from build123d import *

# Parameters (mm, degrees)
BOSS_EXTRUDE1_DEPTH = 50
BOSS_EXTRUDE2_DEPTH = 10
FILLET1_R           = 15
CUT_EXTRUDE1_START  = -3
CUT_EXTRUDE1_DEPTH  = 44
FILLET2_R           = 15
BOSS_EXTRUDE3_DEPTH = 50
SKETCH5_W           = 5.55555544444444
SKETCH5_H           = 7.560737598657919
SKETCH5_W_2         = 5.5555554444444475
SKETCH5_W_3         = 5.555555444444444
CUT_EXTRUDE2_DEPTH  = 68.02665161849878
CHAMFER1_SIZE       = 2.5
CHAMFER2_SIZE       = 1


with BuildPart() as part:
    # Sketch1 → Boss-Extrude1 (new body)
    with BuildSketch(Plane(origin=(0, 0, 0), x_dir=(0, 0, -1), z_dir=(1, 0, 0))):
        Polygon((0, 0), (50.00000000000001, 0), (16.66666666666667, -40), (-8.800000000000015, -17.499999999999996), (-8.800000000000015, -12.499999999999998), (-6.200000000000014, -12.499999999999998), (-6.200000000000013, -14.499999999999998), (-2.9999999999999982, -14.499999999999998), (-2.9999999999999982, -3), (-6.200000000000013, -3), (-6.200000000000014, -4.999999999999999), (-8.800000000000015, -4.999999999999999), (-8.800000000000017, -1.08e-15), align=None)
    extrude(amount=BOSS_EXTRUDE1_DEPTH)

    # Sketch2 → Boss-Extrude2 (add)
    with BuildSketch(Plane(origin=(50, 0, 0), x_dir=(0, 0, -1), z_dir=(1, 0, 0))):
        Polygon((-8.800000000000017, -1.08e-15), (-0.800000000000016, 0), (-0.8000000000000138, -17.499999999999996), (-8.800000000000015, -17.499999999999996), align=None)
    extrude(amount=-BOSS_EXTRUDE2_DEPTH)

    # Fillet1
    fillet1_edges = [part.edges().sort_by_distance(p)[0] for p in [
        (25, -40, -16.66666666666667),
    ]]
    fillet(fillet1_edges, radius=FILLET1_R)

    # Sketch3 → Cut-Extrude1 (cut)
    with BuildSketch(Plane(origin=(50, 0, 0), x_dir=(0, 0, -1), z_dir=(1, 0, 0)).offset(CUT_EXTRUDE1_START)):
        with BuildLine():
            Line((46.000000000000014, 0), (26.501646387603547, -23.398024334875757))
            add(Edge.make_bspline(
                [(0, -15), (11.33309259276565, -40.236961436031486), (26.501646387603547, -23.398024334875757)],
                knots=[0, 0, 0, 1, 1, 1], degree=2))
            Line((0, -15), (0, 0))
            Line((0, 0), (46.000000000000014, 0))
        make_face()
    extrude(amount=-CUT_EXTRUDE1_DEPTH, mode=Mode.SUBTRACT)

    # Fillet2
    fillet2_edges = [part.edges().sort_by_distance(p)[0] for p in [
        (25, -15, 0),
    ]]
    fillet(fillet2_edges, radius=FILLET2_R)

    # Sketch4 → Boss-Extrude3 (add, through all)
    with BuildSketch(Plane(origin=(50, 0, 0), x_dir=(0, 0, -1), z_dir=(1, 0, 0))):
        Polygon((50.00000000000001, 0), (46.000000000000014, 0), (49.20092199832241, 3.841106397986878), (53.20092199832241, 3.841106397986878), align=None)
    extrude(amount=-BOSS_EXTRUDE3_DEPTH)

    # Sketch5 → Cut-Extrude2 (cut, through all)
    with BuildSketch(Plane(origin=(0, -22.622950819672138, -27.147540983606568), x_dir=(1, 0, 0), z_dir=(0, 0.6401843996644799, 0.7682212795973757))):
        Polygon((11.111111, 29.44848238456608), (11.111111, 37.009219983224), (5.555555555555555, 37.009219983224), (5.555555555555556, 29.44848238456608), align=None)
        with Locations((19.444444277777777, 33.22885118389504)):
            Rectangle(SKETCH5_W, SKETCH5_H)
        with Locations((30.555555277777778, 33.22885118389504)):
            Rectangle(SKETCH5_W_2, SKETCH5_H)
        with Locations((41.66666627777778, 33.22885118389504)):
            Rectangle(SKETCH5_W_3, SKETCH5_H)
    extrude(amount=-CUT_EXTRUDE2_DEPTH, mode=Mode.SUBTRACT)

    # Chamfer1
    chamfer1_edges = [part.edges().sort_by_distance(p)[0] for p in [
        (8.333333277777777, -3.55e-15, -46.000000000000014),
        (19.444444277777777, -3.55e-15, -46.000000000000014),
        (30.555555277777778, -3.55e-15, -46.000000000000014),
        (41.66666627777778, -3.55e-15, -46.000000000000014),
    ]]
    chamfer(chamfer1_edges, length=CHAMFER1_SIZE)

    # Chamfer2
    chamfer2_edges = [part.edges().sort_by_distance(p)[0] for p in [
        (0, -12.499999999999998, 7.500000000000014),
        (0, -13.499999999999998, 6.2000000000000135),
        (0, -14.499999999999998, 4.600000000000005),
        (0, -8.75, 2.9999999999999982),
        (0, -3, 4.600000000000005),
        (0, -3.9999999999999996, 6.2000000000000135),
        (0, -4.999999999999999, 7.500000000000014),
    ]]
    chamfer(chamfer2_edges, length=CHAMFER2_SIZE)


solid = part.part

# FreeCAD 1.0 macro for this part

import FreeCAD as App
import Part
import Sketcher

V = App.Vector


def edges_at(feature, points):
    """Names of the edges that pass closest to the given points."""
    edges = feature.Shape.Edges
    near = lambda p: min(range(len(edges)), key=lambda i: edges[i].distToShape(Part.Vertex(*p))[0])
    return sorted({f"Edge{near(p) + 1}" for p in points})

doc = App.newDocument("Part")
body = doc.addObject("PartDesign::Body", "Body")

# Sketch on YZ plane
sketch1 = doc.addObject("Sketcher::SketchObject", "Sketch")
body.addObject(sketch1)
sketch1.AttachmentSupport = (doc.YZ_Plane, [""])
sketch1.MapMode = "FlatFace"
sketch1.addGeometry([
    Part.LineSegment(V(0, -50, 0), V(0, 8.8, 0)),  # 0
    Part.LineSegment(V(0, 8.8, 0), V(-5, 8.8, 0)),  # 1
    Part.LineSegment(V(-5, 8.8, 0), V(-5, 6.2, 0)),  # 2
    Part.LineSegment(V(-5, 6.2, 0), V(-3, 6.2, 0)),  # 3
    Part.LineSegment(V(-3, 6.2, 0), V(-3, 3, 0)),  # 4
    Part.LineSegment(V(-3, 3, 0), V(-14.5, 3, 0)),  # 5
    Part.LineSegment(V(-14.5, 3, 0), V(-14.5, 6.2, 0)),  # 6
    Part.LineSegment(V(-14.5, 6.2, 0), V(-12.5, 6.2, 0)),  # 7
    Part.LineSegment(V(-12.5, 6.2, 0), V(-12.5, 8.8, 0)),  # 8
    Part.LineSegment(V(-12.5, 8.8, 0), V(-17.5, 8.8, 0)),  # 9
    Part.LineSegment(V(-17.5, 8.8, 0), V(-40, -16.7, 0)),  # 10
    Part.LineSegment(V(-40, -16.7, 0), V(0, -50, 0)),  # 11
], False)
sketch1.addConstraint([
    Sketcher.Constraint("Coincident", 0, 2, 1, 1),
    Sketcher.Constraint("Coincident", 1, 2, 2, 1),
    Sketcher.Constraint("Coincident", 2, 2, 3, 1),
    Sketcher.Constraint("Coincident", 3, 2, 4, 1),
    Sketcher.Constraint("Coincident", 4, 2, 5, 1),
    Sketcher.Constraint("Coincident", 5, 2, 6, 1),
    Sketcher.Constraint("Coincident", 6, 2, 7, 1),
    Sketcher.Constraint("Coincident", 7, 2, 8, 1),
    Sketcher.Constraint("Coincident", 8, 2, 9, 1),
    Sketcher.Constraint("Coincident", 9, 2, 10, 1),
    Sketcher.Constraint("Coincident", 10, 2, 11, 1),
    Sketcher.Constraint("Coincident", 11, 2, 0, 1),
    Sketcher.Constraint("Vertical", 0),
    Sketcher.Constraint("Horizontal", 1),
    Sketcher.Constraint("Vertical", 2),
    Sketcher.Constraint("Horizontal", 3),
    Sketcher.Constraint("Vertical", 4),
    Sketcher.Constraint("Horizontal", 5),
    Sketcher.Constraint("Vertical", 6),
    Sketcher.Constraint("Horizontal", 7),
    Sketcher.Constraint("Vertical", 8),
    Sketcher.Constraint("Horizontal", 9),
    Sketcher.Constraint("PointOnObject", 0, 2, -2),
    Sketcher.Constraint("Horizontal", 3, 2, 6, 2),
    Sketcher.Constraint("Horizontal", 1, 2, 8, 2),
    Sketcher.Constraint("Equal", 3, 7),
    Sketcher.Constraint("Equal", 1, 9),
    Sketcher.Constraint("DistanceX", 1, 2, 1, 1, 5.0),
    Sketcher.Constraint("DistanceX", 3, 1, 3, 2, 2.0),
    Sketcher.Constraint("DistanceX", 5, 2, 5, 1, 11.5),
    Sketcher.Constraint("DistanceY", 0, 1, 0, 2, 58.8),
    Sketcher.Constraint("DistanceY", 2, 2, 2, 1, 2.6),
    Sketcher.Constraint("DistanceY", 4, 2, 4, 1, 3.2),
    Sketcher.Constraint("DistanceY", -1, 1, 4, 2, 3.0),
    Sketcher.Constraint("DistanceX", 10, 2, -1, 1, 40.0),
    Sketcher.Constraint("Distance", 11, 52.068331),
])
pad1 = doc.addObject("PartDesign::Pad", "Pad")
body.addObject(pad1)
pad1.Profile = sketch1
pad1.Length = 50

# Sketch on YZ plane
sketch2 = doc.addObject("Sketcher::SketchObject", "Sketch001")
body.addObject(sketch2)
sketch2.AttachmentSupport = (doc.YZ_Plane, [""])
sketch2.MapMode = "FlatFace"
sketch2.AttachmentOffset = App.Placement(V(0, 0, 50), App.Rotation())
sketch2.addGeometry([
    Part.LineSegment(V(0, 1, 0), V(0, 9, 0)),
    Part.LineSegment(V(0, 9, 0), V(-18, 9, 0)),
    Part.LineSegment(V(-18, 9, 0), V(-18, 1, 0)),
    Part.LineSegment(V(-18, 1, 0), V(0, 1, 0)),
], False)
sketch2.addConstraint([
    Sketcher.Constraint("Coincident", 0, 2, 1, 1),
    Sketcher.Constraint("Coincident", 1, 2, 2, 1),
    Sketcher.Constraint("Coincident", 2, 2, 3, 1),
    Sketcher.Constraint("Coincident", 3, 2, 0, 1),
    Sketcher.Constraint("Vertical", 0),
    Sketcher.Constraint("Horizontal", 1),
    Sketcher.Constraint("Vertical", 2),
    Sketcher.Constraint("Horizontal", 3),
    Sketcher.Constraint("PointOnObject", 0, 2, -2),
    Sketcher.Constraint("DistanceY", 0, 1, 0, 2, 8.0),
    Sketcher.Constraint("DistanceX", 1, 2, 1, 1, 17.5),
    Sketcher.Constraint("DistanceY", -1, 1, 0, 2, 8.8),
])
pad2 = doc.addObject("PartDesign::Pad", "Pad001")
body.addObject(pad2)
pad2.Profile = sketch2
pad2.Length = 10
pad2.Reversed = True
doc.recompute()

fillet = doc.addObject("PartDesign::Fillet", "Fillet")
body.addObject(fillet)
fillet.Base = (pad2, edges_at(pad2, [(25, -40, -16.667)]))
fillet.Radius = 15

# Sketch on YZ plane
sketch3 = doc.addObject("Sketcher::SketchObject", "Sketch002")
body.addObject(sketch3)
sketch3.AttachmentSupport = (doc.YZ_Plane, [""])
sketch3.MapMode = "FlatFace"
sketch3.AttachmentOffset = App.Placement(V(0, 0, 47), App.Rotation())
sketch3.addGeometry([
    Part.LineSegment(V(-23.398024, -26.501646, 0), V(0, -46, 0)),
    Part.LineSegment(V(0, -46, 0), V(0, 0, 0)),
    Part.LineSegment(V(0, 0, 0), V(-15, 0, 0)),
    Part.BSplineCurve([V(-15, 0, 0), V(-40.236961, -11.333093, 0), V(-23.398024, -26.501646, 0)], [3, 3], [0, 1], False, 2, [1, 1, 1], False),
], False)
sketch3.addConstraint([
    Sketcher.Constraint("Block", 3),
    Sketcher.Constraint("Coincident", 0, 2, 1, 1),
    Sketcher.Constraint("Coincident", 1, 2, 2, 1),
    Sketcher.Constraint("Coincident", 2, 2, 3, 1),
    Sketcher.Constraint("Coincident", 3, 2, 0, 1),
    Sketcher.Constraint("Vertical", 1),
    Sketcher.Constraint("Horizontal", 2),
    Sketcher.Constraint("PointOnObject", 0, 2, -2),
    Sketcher.Constraint("DistanceY", 1, 1, 1, 2, 46.0),
])
pocket1 = doc.addObject("PartDesign::Pocket", "Pocket")
body.addObject(pocket1)
pocket1.Profile = sketch3
pocket1.Length = 44
doc.recompute()

fillet2 = doc.addObject("PartDesign::Fillet", "Fillet001")
body.addObject(fillet2)
fillet2.Base = (pocket1, edges_at(pocket1, [(25, -15, 0)]))
fillet2.Radius = 15

# Sketch on YZ plane
sketch4 = doc.addObject("Sketcher::SketchObject", "Sketch003")
body.addObject(sketch4)
sketch4.AttachmentSupport = (doc.YZ_Plane, [""])
sketch4.MapMode = "FlatFace"
sketch4.AttachmentOffset = App.Placement(V(0, 0, 50), App.Rotation())
sketch4.addGeometry([
    Part.LineSegment(V(0, -46, 0), V(0, -50, 0)),
    Part.LineSegment(V(0, -50, 0), V(3.8, -53.2, 0)),
    Part.LineSegment(V(3.8, -53.2, 0), V(3.8, -49.2, 0)),
    Part.LineSegment(V(3.8, -49.2, 0), V(0, -46, 0)),
], False)
sketch4.addConstraint([
    Sketcher.Constraint("Coincident", 0, 2, 1, 1),
    Sketcher.Constraint("Coincident", 1, 2, 2, 1),
    Sketcher.Constraint("Coincident", 2, 2, 3, 1),
    Sketcher.Constraint("Coincident", 3, 2, 0, 1),
    Sketcher.Constraint("Vertical", 0),
    Sketcher.Constraint("Vertical", 2),
    Sketcher.Constraint("PointOnObject", 0, 2, -2),
    Sketcher.Constraint("Parallel", 1, 3),
    Sketcher.Constraint("DistanceY", 0, 2, 0, 1, 4.0),
    Sketcher.Constraint("Distance", 1, 5.0),
    Sketcher.Constraint("DistanceY", 0, 2, -1, 1, 50.0),
    Sketcher.Constraint("DistanceY", 1, 2, -1, 1, 53.200922),
])
pad3 = doc.addObject("PartDesign::Pad", "Pad002")
body.addObject(pad3)
pad3.Profile = sketch4
pad3.Length = 50
pad3.Reversed = True

# Sketch on an angled plane
sketch5 = doc.addObject("Sketcher::SketchObject", "Sketch004")
body.addObject(sketch5)
sketch5.Placement = App.Placement(V(0, -22.622951, -27.147541), App.Rotation(V(1, 0, 0), V(0, 0.76822128, -0.6401844), V(0, 0.6401844, 0.76822128), "ZXY"))
sketch5.addGeometry([
    Part.LineSegment(V(11, 29, 0), V(11, 37, 0)),  # 0
    Part.LineSegment(V(11, 37, 0), V(6, 37, 0)),  # 1
    Part.LineSegment(V(6, 37, 0), V(6, 29, 0)),  # 2
    Part.LineSegment(V(6, 29, 0), V(11, 29, 0)),  # 3
    Part.LineSegment(V(17, 37, 0), V(17, 29, 0)),  # 4
    Part.LineSegment(V(17, 29, 0), V(22, 29, 0)),  # 5
    Part.LineSegment(V(22, 29, 0), V(22, 37, 0)),  # 6
    Part.LineSegment(V(22, 37, 0), V(17, 37, 0)),  # 7
    Part.LineSegment(V(28, 37, 0), V(28, 29, 0)),  # 8
    Part.LineSegment(V(28, 29, 0), V(33, 29, 0)),  # 9
    Part.LineSegment(V(33, 29, 0), V(33, 37, 0)),  # 10
    Part.LineSegment(V(33, 37, 0), V(28, 37, 0)),  # 11
    Part.LineSegment(V(39, 37, 0), V(39, 29, 0)),  # 12
    Part.LineSegment(V(39, 29, 0), V(44, 29, 0)),  # 13
    Part.LineSegment(V(44, 29, 0), V(44, 37, 0)),  # 14
    Part.LineSegment(V(44, 37, 0), V(39, 37, 0)),  # 15
], False)
sketch5.addConstraint([
    Sketcher.Constraint("Coincident", 0, 2, 1, 1),
    Sketcher.Constraint("Coincident", 1, 2, 2, 1),
    Sketcher.Constraint("Coincident", 2, 2, 3, 1),
    Sketcher.Constraint("Coincident", 3, 2, 0, 1),
    Sketcher.Constraint("Coincident", 4, 2, 5, 1),
    Sketcher.Constraint("Coincident", 5, 2, 6, 1),
    Sketcher.Constraint("Coincident", 6, 2, 7, 1),
    Sketcher.Constraint("Coincident", 7, 2, 4, 1),
    Sketcher.Constraint("Coincident", 8, 2, 9, 1),
    Sketcher.Constraint("Coincident", 9, 2, 10, 1),
    Sketcher.Constraint("Coincident", 10, 2, 11, 1),
    Sketcher.Constraint("Coincident", 11, 2, 8, 1),
    Sketcher.Constraint("Coincident", 12, 2, 13, 1),
    Sketcher.Constraint("Coincident", 13, 2, 14, 1),
    Sketcher.Constraint("Coincident", 14, 2, 15, 1),
    Sketcher.Constraint("Coincident", 15, 2, 12, 1),
    Sketcher.Constraint("Vertical", 0),
    Sketcher.Constraint("Horizontal", 1),
    Sketcher.Constraint("Vertical", 2),
    Sketcher.Constraint("Horizontal", 3),
    Sketcher.Constraint("Vertical", 4),
    Sketcher.Constraint("Horizontal", 5),
    Sketcher.Constraint("Vertical", 6),
    Sketcher.Constraint("Horizontal", 7),
    Sketcher.Constraint("Vertical", 8),
    Sketcher.Constraint("Horizontal", 9),
    Sketcher.Constraint("Vertical", 10),
    Sketcher.Constraint("Horizontal", 11),
    Sketcher.Constraint("Vertical", 12),
    Sketcher.Constraint("Horizontal", 13),
    Sketcher.Constraint("Vertical", 14),
    Sketcher.Constraint("Horizontal", 15),
    Sketcher.Constraint("Horizontal", 3, 2, 4, 2),
    Sketcher.Constraint("Horizontal", 1, 2, 6, 2),
    Sketcher.Constraint("Horizontal", 5, 2, 8, 2),
    Sketcher.Constraint("Horizontal", 7, 2, 10, 2),
    Sketcher.Constraint("Horizontal", 9, 2, 12, 2),
    Sketcher.Constraint("Horizontal", 11, 2, 14, 2),
    Sketcher.Constraint("Equal", 3, 5),
    Sketcher.Constraint("Equal", 7, 9),
    Sketcher.Constraint("Equal", 11, 13),
    Sketcher.Constraint("DistanceX", 1, 2, 1, 1, 5.555555),
    Sketcher.Constraint("DistanceY", 0, 1, 0, 2, 7.560738),
    Sketcher.Constraint("DistanceX", -1, 1, 0, 2, 11.111111),
    Sketcher.Constraint("DistanceY", -1, 1, 0, 2, 37.00922),
    Sketcher.Constraint("DistanceX", -1, 1, 5, 2, 22.222222),
    Sketcher.Constraint("DistanceX", -1, 1, 12, 2, 38.888889),
    Sketcher.Constraint("DistanceX", 4, 2, 8, 2, 11.111111),
])
pocket2 = doc.addObject("PartDesign::Pocket", "Pocket001")
body.addObject(pocket2)
pocket2.Profile = sketch5
pocket2.Type = "ThroughAll"
doc.recompute()

chamfer = doc.addObject("PartDesign::Chamfer", "Chamfer")
body.addObject(chamfer)
chamfer.Base = (pocket2, edges_at(pocket2, [
    (8.333, 0, -46),
    (19.444, 0, -46),
    (30.556, 0, -46),
    (41.667, 0, -46),
]))
chamfer.Size = 2.5
doc.recompute()

chamfer2 = doc.addObject("PartDesign::Chamfer", "Chamfer001")
body.addObject(chamfer2)
chamfer2.Base = (chamfer, edges_at(chamfer, [
    (0, -12.5, 7.5),
    (0, -13.5, 6.2),
    (0, -14.5, 4.6),
    (0, -8.75, 3),
    (0, -3, 4.6),
    (0, -4, 6.2),
    (0, -5, 7.5),
]))
chamfer2.Size = 1

doc.recompute()
